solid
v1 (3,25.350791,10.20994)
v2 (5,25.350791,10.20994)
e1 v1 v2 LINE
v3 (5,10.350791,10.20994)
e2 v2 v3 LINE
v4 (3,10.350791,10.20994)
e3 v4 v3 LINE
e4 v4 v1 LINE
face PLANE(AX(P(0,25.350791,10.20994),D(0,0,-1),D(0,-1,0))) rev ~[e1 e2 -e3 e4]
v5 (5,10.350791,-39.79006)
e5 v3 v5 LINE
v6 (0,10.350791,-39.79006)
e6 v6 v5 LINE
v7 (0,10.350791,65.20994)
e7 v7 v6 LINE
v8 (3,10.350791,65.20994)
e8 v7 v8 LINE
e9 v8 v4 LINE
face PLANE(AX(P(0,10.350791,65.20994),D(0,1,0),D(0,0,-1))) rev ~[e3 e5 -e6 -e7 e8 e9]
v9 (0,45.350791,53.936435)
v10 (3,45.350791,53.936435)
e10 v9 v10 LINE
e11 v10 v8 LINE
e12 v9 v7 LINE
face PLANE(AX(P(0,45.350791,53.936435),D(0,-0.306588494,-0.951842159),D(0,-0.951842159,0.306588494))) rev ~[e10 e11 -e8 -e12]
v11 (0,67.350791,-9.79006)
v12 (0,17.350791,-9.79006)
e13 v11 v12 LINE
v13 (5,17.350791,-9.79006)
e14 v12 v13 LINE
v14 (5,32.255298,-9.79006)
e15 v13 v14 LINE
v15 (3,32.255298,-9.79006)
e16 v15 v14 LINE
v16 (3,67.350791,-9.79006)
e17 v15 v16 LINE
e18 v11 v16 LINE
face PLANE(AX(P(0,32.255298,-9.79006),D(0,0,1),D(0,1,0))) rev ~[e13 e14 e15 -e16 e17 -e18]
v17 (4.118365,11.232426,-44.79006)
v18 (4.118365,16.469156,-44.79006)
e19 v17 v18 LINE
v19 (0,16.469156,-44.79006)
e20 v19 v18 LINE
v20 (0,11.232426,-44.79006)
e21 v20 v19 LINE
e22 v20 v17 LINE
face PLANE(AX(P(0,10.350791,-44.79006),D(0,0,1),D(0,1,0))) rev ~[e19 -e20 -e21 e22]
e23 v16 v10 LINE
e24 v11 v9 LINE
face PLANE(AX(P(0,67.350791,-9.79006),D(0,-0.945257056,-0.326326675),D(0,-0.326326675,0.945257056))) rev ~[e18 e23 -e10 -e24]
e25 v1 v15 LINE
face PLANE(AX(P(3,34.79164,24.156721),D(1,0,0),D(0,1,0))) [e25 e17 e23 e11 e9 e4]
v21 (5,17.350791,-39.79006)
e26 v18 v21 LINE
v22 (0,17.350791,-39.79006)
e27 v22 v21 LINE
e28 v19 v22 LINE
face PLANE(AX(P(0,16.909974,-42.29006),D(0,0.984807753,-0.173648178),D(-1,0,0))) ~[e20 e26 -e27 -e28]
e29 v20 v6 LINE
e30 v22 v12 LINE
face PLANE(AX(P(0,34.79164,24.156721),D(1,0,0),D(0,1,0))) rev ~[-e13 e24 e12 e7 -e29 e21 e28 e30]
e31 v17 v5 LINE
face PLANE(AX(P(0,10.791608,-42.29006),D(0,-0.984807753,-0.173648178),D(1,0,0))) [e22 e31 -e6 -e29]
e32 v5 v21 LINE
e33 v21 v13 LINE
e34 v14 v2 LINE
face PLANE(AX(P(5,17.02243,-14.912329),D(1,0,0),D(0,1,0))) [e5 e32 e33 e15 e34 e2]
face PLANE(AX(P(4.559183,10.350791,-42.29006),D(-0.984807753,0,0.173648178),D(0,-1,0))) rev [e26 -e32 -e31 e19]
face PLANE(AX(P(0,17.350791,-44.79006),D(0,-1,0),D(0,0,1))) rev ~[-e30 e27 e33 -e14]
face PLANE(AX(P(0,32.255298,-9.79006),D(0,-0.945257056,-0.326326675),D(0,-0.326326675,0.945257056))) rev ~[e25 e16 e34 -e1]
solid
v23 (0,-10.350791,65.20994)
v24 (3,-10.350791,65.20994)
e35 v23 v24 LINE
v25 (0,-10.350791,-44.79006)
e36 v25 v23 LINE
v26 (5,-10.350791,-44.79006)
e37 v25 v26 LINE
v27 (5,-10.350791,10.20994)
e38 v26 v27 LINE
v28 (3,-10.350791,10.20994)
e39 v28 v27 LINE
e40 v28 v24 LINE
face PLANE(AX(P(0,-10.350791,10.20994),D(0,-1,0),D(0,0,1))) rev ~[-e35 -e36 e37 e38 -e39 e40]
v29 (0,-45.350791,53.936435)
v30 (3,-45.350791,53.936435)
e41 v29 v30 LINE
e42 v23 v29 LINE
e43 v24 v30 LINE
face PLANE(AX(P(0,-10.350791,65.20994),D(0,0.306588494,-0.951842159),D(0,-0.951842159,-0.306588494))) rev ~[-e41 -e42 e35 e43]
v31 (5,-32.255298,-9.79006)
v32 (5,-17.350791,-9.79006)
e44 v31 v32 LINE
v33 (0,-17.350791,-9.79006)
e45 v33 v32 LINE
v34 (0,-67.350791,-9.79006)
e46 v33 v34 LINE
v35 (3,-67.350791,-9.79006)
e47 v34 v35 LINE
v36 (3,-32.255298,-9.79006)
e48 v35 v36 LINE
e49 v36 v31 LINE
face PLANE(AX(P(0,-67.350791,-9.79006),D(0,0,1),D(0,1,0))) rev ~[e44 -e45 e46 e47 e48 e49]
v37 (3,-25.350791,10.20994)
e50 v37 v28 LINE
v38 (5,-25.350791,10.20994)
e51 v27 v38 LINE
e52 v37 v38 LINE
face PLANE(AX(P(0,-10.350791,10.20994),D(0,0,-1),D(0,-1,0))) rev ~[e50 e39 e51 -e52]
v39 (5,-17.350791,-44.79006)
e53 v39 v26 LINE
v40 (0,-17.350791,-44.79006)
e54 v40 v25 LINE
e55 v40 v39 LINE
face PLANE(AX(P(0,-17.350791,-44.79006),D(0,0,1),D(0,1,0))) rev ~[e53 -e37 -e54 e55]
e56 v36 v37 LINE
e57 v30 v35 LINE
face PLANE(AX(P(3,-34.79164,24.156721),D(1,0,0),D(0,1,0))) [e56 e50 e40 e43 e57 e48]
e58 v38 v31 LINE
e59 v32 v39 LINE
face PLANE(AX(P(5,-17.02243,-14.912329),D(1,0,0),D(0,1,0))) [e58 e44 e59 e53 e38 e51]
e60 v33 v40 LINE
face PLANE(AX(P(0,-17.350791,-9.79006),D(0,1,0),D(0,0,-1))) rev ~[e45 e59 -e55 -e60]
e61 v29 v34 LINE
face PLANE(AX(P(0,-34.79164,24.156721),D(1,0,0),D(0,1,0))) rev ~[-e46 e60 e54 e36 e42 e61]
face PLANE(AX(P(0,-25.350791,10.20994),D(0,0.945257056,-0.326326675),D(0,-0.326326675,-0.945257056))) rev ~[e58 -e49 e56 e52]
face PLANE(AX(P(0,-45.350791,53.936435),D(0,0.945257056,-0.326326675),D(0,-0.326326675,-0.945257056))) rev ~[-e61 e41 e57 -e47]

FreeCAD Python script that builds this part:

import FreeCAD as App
import Part
import Sketcher
from FreeCAD import Vector


def edges_at(feature, points):
    """Names of the edges that pass closest to the given points."""
    edges = feature.Shape.Edges
    near = lambda p: min(range(len(edges)), key=lambda i: edges[i].distToShape(Part.Vertex(*p))[0])
    return sorted({f"Edge{near(p) + 1}" for p in points})

doc = App.newDocument("Part")
body = doc.addObject("PartDesign::Body", "Body")

sketch1 = doc.addObject("Sketcher::SketchObject", "Sketch")
body.addObject(sketch1)
sketch1.AttachmentSupport = (doc.YZ_Plane, [""])
sketch1.MapMode = "FlatFace"
sketch1.addGeometry(Part.LineSegment(Vector(-17.350791, -9.79006, 0), Vector(-17.350791, -44.79006, 0)), False)
sketch1.addGeometry(Part.LineSegment(Vector(-17.350791, -44.79006, 0), Vector(-10.350791, -44.79006, 0)), False)
sketch1.addGeometry(Part.LineSegment(Vector(-10.350791, -44.79006, 0), Vector(-10.350791, 10.20994, 0)), False)
sketch1.addGeometry(Part.LineSegment(Vector(-10.350791, 10.20994, 0), Vector(-25.350791, 10.20994, 0)), False)
sketch1.addGeometry(Part.LineSegment(Vector(-25.350791, 10.20994, 0), Vector(-32.255298, -9.79006, 0)), False)
sketch1.addGeometry(Part.LineSegment(Vector(-32.255298, -9.79006, 0), Vector(-17.350791, -9.79006, 0)), False)
sketch1.addConstraint(Sketcher.Constraint("Coincident", 0, 2, 1, 1))
sketch1.addConstraint(Sketcher.Constraint("Coincident", 1, 2, 2, 1))
sketch1.addConstraint(Sketcher.Constraint("Coincident", 2, 2, 3, 1))
sketch1.addConstraint(Sketcher.Constraint("Coincident", 3, 2, 4, 1))
sketch1.addConstraint(Sketcher.Constraint("Coincident", 4, 2, 5, 1))
sketch1.addConstraint(Sketcher.Constraint("Coincident", 5, 2, 0, 1))
sketch1.addConstraint(Sketcher.Constraint("Vertical", 0))
sketch1.addConstraint(Sketcher.Constraint("Horizontal", 1))
sketch1.addConstraint(Sketcher.Constraint("Vertical", 2))
sketch1.addConstraint(Sketcher.Constraint("Horizontal", 3))
sketch1.addConstraint(Sketcher.Constraint("Horizontal", 5))
sketch1.addConstraint(Sketcher.Constraint("DistanceX", 1, 1, 1, 2, 7.0))
sketch1.addConstraint(Sketcher.Constraint("DistanceX", 3, 2, 3, 1, 15.0))
sketch1.addConstraint(Sketcher.Constraint("DistanceY", 0, 2, 0, 1, 35.0))
sketch1.addConstraint(Sketcher.Constraint("DistanceY", 2, 1, 2, 2, 55.0))
sketch1.addConstraint(Sketcher.Constraint("DistanceX", 5, 1, 5, 2, 14.904507))
sketch1.addConstraint(Sketcher.Constraint("DistanceX", 0, 2, -1, 1, 17.350791))
sketch1.addConstraint(Sketcher.Constraint("DistanceY", 0, 2, -1, 1, 44.79006))
pad1 = doc.addObject("PartDesign::Pad", "Pad")
body.addObject(pad1)
pad1.Profile = sketch1
pad1.Length = 5

sketch2 = doc.addObject("Sketcher::SketchObject", "Sketch001")
body.addObject(sketch2)
sketch2.AttachmentSupport = (doc.YZ_Plane, [""])
sketch2.MapMode = "FlatFace"
sketch2.addGeometry(Part.LineSegment(Vector(-25.350791, 10.20994, 0), Vector(-10.350791, 10.20994, 0)), False)
sketch2.addGeometry(Part.LineSegment(Vector(-10.350791, 10.20994, 0), Vector(-10.350791, 65.20994, 0)), False)
sketch2.addGeometry(Part.LineSegment(Vector(-10.350791, 65.20994, 0), Vector(-45.350791, 53.936435, 0)), False)
sketch2.addGeometry(Part.LineSegment(Vector(-45.350791, 53.936435, 0), Vector(-67.350791, -9.79006, 0)), False)
sketch2.addGeometry(Part.LineSegment(Vector(-67.350791, -9.79006, 0), Vector(-32.255298, -9.79006, 0)), False)
sketch2.addGeometry(Part.LineSegment(Vector(-32.255298, -9.79006, 0), Vector(-25.350791, 10.20994, 0)), False)
sketch2.addConstraint(Sketcher.Constraint("Coincident", 0, 2, 1, 1))
sketch2.addConstraint(Sketcher.Constraint("Coincident", 1, 2, 2, 1))
sketch2.addConstraint(Sketcher.Constraint("Coincident", 2, 2, 3, 1))
sketch2.addConstraint(Sketcher.Constraint("Coincident", 3, 2, 4, 1))
sketch2.addConstraint(Sketcher.Constraint("Coincident", 4, 2, 5, 1))
sketch2.addConstraint(Sketcher.Constraint("Coincident", 5, 2, 0, 1))
sketch2.addConstraint(Sketcher.Constraint("Horizontal", 0))
sketch2.addConstraint(Sketcher.Constraint("Vertical", 1))
sketch2.addConstraint(Sketcher.Constraint("Horizontal", 4))
sketch2.addConstraint(Sketcher.Constraint("Parallel", 3, 5))
sketch2.addConstraint(Sketcher.Constraint("DistanceX", 0, 1, 0, 2, 15.0))
sketch2.addConstraint(Sketcher.Constraint("DistanceY", 1, 1, 1, 2, 55.0))
sketch2.addConstraint(Sketcher.Constraint("DistanceX", 2, 2, 1, 2, 35.0))
sketch2.addConstraint(Sketcher.Constraint("DistanceX", 3, 2, 0, 2, 57.0))
sketch2.addConstraint(Sketcher.Constraint("DistanceY", 3, 2, 0, 2, 20.0))
sketch2.addConstraint(Sketcher.Constraint("DistanceX", 4, 1, 4, 2, 35.095493))
sketch2.addConstraint(Sketcher.Constraint("DistanceX", 0, 2, -1, 1, 10.350791))
sketch2.addConstraint(Sketcher.Constraint("DistanceY", -1, 1, 0, 2, 10.20994))
pad2 = doc.addObject("PartDesign::Pad", "Pad001")
body.addObject(pad2)
pad2.Profile = sketch2
pad2.Length = 3
body2 = doc.addObject("PartDesign::Body", "Body001")

sketch3 = doc.addObject("Sketcher::SketchObject", "Sketch002")
body2.addObject(sketch3)
sketch3.AttachmentSupport = (doc.getObject("YZ_Plane001"), [""])
sketch3.MapMode = "FlatFace"
sketch3.addGeometry(Part.LineSegment(Vector(10.350791, 10.20994, 0), Vector(10.350791, -44.79006, 0)), False)
sketch3.addGeometry(Part.LineSegment(Vector(10.350791, -44.79006, 0), Vector(17.350791, -44.79006, 0)), False)
sketch3.addGeometry(Part.LineSegment(Vector(17.350791, -44.79006, 0), Vector(17.350791, -9.79006, 0)), False)
sketch3.addGeometry(Part.LineSegment(Vector(17.350791, -9.79006, 0), Vector(32.255298, -9.79006, 0)), False)
sketch3.addGeometry(Part.LineSegment(Vector(32.255298, -9.79006, 0), Vector(25.350791, 10.20994, 0)), False)
sketch3.addGeometry(Part.LineSegment(Vector(25.350791, 10.20994, 0), Vector(10.350791, 10.20994, 0)), False)
sketch3.addConstraint(Sketcher.Constraint("Coincident", 0, 2, 1, 1))
sketch3.addConstraint(Sketcher.Constraint("Coincident", 1, 2, 2, 1))
sketch3.addConstraint(Sketcher.Constraint("Coincident", 2, 2, 3, 1))
sketch3.addConstraint(Sketcher.Constraint("Coincident", 3, 2, 4, 1))
sketch3.addConstraint(Sketcher.Constraint("Coincident", 4, 2, 5, 1))
sketch3.addConstraint(Sketcher.Constraint("Coincident", 5, 2, 0, 1))
sketch3.addConstraint(Sketcher.Constraint("Vertical", 0))
sketch3.addConstraint(Sketcher.Constraint("Horizontal", 1))
sketch3.addConstraint(Sketcher.Constraint("Vertical", 2))
sketch3.addConstraint(Sketcher.Constraint("Horizontal", 3))
sketch3.addConstraint(Sketcher.Constraint("Horizontal", 5))
sketch3.addConstraint(Sketcher.Constraint("DistanceX", 1, 1, 1, 2, 7.0))
sketch3.addConstraint(Sketcher.Constraint("DistanceX", 5, 2, 5, 1, 15.0))
sketch3.addConstraint(Sketcher.Constraint("DistanceY", 0, 2, 0, 1, 55.0))
sketch3.addConstraint(Sketcher.Constraint("DistanceY", 2, 1, 2, 2, 35.0))
sketch3.addConstraint(Sketcher.Constraint("DistanceX", 3, 1, 3, 2, 14.904507))
sketch3.addConstraint(Sketcher.Constraint("DistanceX", -1, 1, 0, 2, 10.350791))
sketch3.addConstraint(Sketcher.Constraint("DistanceY", 0, 2, -1, 1, 44.79006))
pad3 = doc.addObject("PartDesign::Pad", "Pad002")
body2.addObject(pad3)
pad3.Profile = sketch3
pad3.Length = 5

sketch4 = doc.addObject("Sketcher::SketchObject", "Sketch003")
body2.addObject(sketch4)
sketch4.AttachmentSupport = (doc.getObject("YZ_Plane001"), [""])
sketch4.MapMode = "FlatFace"
sketch4.addGeometry(Part.LineSegment(Vector(10.350791, 65.20994, 0), Vector(10.350791, 10.20994, 0)), False)
sketch4.addGeometry(Part.LineSegment(Vector(10.350791, 10.20994, 0), Vector(25.350791, 10.20994, 0)), False)
sketch4.addGeometry(Part.LineSegment(Vector(25.350791, 10.20994, 0), Vector(32.255298, -9.79006, 0)), False)
sketch4.addGeometry(Part.LineSegment(Vector(32.255298, -9.79006, 0), Vector(67.350791, -9.79006, 0)), False)
sketch4.addGeometry(Part.LineSegment(Vector(67.350791, -9.79006, 0), Vector(45.350791, 53.936435, 0)), False)
sketch4.addGeometry(Part.LineSegment(Vector(45.350791, 53.936435, 0), Vector(10.350791, 65.20994, 0)), False)
sketch4.addConstraint(Sketcher.Constraint("Coincident", 0, 2, 1, 1))
sketch4.addConstraint(Sketcher.Constraint("Coincident", 1, 2, 2, 1))
sketch4.addConstraint(Sketcher.Constraint("Coincident", 2, 2, 3, 1))
sketch4.addConstraint(Sketcher.Constraint("Coincident", 3, 2, 4, 1))
sketch4.addConstraint(Sketcher.Constraint("Coincident", 4, 2, 5, 1))
sketch4.addConstraint(Sketcher.Constraint("Coincident", 5, 2, 0, 1))
sketch4.addConstraint(Sketcher.Constraint("Vertical", 0))
sketch4.addConstraint(Sketcher.Constraint("Horizontal", 1))
sketch4.addConstraint(Sketcher.Constraint("Horizontal", 3))
sketch4.addConstraint(Sketcher.Constraint("Parallel", 2, 4))
sketch4.addConstraint(Sketcher.Constraint("DistanceX", 1, 1, 1, 2, 15.0))
sketch4.addConstraint(Sketcher.Constraint("DistanceY", 0, 2, 0, 1, 55.0))
sketch4.addConstraint(Sketcher.Constraint("DistanceY", 2, 2, 1, 2, 20.0))
sketch4.addConstraint(Sketcher.Constraint("DistanceX", 1, 2, 3, 2, 42.0))
sketch4.addConstraint(Sketcher.Constraint("DistanceX", 1, 2, 4, 2, 20.0))
sketch4.addConstraint(Sketcher.Constraint("DistanceX", 3, 1, 3, 2, 35.095493))
sketch4.addConstraint(Sketcher.Constraint("DistanceX", -1, 1, 0, 2, 10.350791))
sketch4.addConstraint(Sketcher.Constraint("DistanceY", -1, 1, 0, 2, 10.20994))
pad4 = doc.addObject("PartDesign::Pad", "Pad003")
body2.addObject(pad4)
pad4.Profile = sketch4
pad4.Length = 3
doc.recompute()

chamfer = doc.addObject("PartDesign::Chamfer", "Chamfer")
body2.addObject(chamfer)
chamfer.Base = (pad4, edges_at(pad4, [(2.5, 17.351, -44.79), (5, 13.851, -44.79), (2.5, 10.351, -44.79)]))
chamfer.ChamferType = "Two distances"
chamfer.Size = 0.881635
chamfer.Size2 = 5

doc.recompute()
